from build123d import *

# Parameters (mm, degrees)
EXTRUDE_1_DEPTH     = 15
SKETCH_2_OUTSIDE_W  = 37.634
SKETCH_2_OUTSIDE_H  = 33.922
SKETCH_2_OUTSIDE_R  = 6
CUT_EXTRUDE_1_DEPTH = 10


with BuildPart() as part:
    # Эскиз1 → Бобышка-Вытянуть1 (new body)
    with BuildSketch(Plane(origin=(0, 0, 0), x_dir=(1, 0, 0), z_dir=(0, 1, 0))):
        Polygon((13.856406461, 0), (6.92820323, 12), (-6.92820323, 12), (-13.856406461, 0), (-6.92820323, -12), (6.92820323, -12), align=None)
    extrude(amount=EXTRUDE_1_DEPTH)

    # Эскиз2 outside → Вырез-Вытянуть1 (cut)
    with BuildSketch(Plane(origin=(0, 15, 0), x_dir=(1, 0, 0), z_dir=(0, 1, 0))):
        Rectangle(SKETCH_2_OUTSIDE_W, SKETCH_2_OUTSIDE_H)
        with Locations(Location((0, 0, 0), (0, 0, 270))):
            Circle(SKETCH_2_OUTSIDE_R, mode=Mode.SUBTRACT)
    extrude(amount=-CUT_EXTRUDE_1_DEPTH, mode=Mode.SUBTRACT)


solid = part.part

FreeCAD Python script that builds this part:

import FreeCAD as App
import Part
import Sketcher
Q = App.Units.Quantity


def add_polygon(sketch, points):
    """Adds a closed chain of lines whose ends are joined by coincident constraints."""
    first, n = sketch.GeometryCount, len(points)
    for a, b in zip(points, points[1:] + points[:1]):
        sketch.addGeometry(Part.LineSegment(App.Vector(*a, 0), App.Vector(*b, 0)), False)
    for i in range(n):
        sketch.addConstraint(Sketcher.Constraint("Coincident", first + i, 2, first + (i + 1) % n, 1))

doc = App.newDocument("Part")
body = doc.addObject("PartDesign::Body", "Body")

sketch1 = body.newObject("Sketcher::SketchObject", "Sketch")
sketch1.AttachmentSupport = (doc.getObject("XZ_Plane"), [""])
sketch1.MapMode = "FlatFace"
add_polygon(sketch1, [(13.856406, 0), (6.928203, -12), (-6.928203, -12), (-13.856406, 0), (-6.928203, 12), (6.928203, 12)])
sketch1.addConstraint([
    Sketcher.Constraint("Horizontal", 1),
    Sketcher.Constraint("Horizontal", 4),
    Sketcher.Constraint("Symmetric", 0, 2, 3, 2, -1, 1),
    Sketcher.Constraint("Symmetric", 2, 2, 5, 2, -1, 1),
    Sketcher.Constraint("PointOnObject", 2, 2, -1),
    Sketcher.Constraint("Parallel", 2, 5),
    Sketcher.Constraint("Vertical", 1, 2, 3, 2),
    Sketcher.Constraint("Angle", 0, Q("-120 deg")),
    Sketcher.Constraint("DistanceY", 0, 2, -1, 1, 12.0),
    Sketcher.Constraint("DistanceX", 1, 2, 1, 1, 13.856406),
])
pad1 = body.newObject("PartDesign::Pad", "Pad")
pad1.Profile = sketch1
pad1.Length = 15
pad1.Reversed = True

sketch2 = body.newObject("Sketcher::SketchObject", "Sketch001")
sketch2.AttachmentSupport = (doc.getObject("XZ_Plane"), [""])
sketch2.MapMode = "FlatFace"
sketch2.AttachmentOffset = App.Placement(App.Vector(0, 0, -15), App.Rotation())
add_polygon(sketch2, [(-18.817, -16.961), (-18.817, 16.961), (18.817, 16.961), (18.817, -16.961)])
sketch2.addGeometry(Part.Circle(App.Vector(0, 0, 0), App.Vector(0, 0, 1), 6), False)
sketch2.addConstraint([
    Sketcher.Constraint("Vertical", 0),
    Sketcher.Constraint("Horizontal", 1),
    Sketcher.Constraint("Vertical", 2),
    Sketcher.Constraint("Horizontal", 3),
    Sketcher.Constraint("Coincident", 4, 3, -1, 1),
    Sketcher.Constraint("Symmetric", 0, 2, 2, 2, -1, 1),
    Sketcher.Constraint("Diameter", 4, 12.0),
    Sketcher.Constraint("DistanceX", 1, 1, 1, 2, 37.634),
    Sketcher.Constraint("DistanceY", 0, 1, 0, 2, 33.922),
])
pocket1 = body.newObject("PartDesign::Pocket", "Pocket")
pocket1.Profile = sketch2
pocket1.Length = 10
pocket1.Reversed = True

doc.recompute()
